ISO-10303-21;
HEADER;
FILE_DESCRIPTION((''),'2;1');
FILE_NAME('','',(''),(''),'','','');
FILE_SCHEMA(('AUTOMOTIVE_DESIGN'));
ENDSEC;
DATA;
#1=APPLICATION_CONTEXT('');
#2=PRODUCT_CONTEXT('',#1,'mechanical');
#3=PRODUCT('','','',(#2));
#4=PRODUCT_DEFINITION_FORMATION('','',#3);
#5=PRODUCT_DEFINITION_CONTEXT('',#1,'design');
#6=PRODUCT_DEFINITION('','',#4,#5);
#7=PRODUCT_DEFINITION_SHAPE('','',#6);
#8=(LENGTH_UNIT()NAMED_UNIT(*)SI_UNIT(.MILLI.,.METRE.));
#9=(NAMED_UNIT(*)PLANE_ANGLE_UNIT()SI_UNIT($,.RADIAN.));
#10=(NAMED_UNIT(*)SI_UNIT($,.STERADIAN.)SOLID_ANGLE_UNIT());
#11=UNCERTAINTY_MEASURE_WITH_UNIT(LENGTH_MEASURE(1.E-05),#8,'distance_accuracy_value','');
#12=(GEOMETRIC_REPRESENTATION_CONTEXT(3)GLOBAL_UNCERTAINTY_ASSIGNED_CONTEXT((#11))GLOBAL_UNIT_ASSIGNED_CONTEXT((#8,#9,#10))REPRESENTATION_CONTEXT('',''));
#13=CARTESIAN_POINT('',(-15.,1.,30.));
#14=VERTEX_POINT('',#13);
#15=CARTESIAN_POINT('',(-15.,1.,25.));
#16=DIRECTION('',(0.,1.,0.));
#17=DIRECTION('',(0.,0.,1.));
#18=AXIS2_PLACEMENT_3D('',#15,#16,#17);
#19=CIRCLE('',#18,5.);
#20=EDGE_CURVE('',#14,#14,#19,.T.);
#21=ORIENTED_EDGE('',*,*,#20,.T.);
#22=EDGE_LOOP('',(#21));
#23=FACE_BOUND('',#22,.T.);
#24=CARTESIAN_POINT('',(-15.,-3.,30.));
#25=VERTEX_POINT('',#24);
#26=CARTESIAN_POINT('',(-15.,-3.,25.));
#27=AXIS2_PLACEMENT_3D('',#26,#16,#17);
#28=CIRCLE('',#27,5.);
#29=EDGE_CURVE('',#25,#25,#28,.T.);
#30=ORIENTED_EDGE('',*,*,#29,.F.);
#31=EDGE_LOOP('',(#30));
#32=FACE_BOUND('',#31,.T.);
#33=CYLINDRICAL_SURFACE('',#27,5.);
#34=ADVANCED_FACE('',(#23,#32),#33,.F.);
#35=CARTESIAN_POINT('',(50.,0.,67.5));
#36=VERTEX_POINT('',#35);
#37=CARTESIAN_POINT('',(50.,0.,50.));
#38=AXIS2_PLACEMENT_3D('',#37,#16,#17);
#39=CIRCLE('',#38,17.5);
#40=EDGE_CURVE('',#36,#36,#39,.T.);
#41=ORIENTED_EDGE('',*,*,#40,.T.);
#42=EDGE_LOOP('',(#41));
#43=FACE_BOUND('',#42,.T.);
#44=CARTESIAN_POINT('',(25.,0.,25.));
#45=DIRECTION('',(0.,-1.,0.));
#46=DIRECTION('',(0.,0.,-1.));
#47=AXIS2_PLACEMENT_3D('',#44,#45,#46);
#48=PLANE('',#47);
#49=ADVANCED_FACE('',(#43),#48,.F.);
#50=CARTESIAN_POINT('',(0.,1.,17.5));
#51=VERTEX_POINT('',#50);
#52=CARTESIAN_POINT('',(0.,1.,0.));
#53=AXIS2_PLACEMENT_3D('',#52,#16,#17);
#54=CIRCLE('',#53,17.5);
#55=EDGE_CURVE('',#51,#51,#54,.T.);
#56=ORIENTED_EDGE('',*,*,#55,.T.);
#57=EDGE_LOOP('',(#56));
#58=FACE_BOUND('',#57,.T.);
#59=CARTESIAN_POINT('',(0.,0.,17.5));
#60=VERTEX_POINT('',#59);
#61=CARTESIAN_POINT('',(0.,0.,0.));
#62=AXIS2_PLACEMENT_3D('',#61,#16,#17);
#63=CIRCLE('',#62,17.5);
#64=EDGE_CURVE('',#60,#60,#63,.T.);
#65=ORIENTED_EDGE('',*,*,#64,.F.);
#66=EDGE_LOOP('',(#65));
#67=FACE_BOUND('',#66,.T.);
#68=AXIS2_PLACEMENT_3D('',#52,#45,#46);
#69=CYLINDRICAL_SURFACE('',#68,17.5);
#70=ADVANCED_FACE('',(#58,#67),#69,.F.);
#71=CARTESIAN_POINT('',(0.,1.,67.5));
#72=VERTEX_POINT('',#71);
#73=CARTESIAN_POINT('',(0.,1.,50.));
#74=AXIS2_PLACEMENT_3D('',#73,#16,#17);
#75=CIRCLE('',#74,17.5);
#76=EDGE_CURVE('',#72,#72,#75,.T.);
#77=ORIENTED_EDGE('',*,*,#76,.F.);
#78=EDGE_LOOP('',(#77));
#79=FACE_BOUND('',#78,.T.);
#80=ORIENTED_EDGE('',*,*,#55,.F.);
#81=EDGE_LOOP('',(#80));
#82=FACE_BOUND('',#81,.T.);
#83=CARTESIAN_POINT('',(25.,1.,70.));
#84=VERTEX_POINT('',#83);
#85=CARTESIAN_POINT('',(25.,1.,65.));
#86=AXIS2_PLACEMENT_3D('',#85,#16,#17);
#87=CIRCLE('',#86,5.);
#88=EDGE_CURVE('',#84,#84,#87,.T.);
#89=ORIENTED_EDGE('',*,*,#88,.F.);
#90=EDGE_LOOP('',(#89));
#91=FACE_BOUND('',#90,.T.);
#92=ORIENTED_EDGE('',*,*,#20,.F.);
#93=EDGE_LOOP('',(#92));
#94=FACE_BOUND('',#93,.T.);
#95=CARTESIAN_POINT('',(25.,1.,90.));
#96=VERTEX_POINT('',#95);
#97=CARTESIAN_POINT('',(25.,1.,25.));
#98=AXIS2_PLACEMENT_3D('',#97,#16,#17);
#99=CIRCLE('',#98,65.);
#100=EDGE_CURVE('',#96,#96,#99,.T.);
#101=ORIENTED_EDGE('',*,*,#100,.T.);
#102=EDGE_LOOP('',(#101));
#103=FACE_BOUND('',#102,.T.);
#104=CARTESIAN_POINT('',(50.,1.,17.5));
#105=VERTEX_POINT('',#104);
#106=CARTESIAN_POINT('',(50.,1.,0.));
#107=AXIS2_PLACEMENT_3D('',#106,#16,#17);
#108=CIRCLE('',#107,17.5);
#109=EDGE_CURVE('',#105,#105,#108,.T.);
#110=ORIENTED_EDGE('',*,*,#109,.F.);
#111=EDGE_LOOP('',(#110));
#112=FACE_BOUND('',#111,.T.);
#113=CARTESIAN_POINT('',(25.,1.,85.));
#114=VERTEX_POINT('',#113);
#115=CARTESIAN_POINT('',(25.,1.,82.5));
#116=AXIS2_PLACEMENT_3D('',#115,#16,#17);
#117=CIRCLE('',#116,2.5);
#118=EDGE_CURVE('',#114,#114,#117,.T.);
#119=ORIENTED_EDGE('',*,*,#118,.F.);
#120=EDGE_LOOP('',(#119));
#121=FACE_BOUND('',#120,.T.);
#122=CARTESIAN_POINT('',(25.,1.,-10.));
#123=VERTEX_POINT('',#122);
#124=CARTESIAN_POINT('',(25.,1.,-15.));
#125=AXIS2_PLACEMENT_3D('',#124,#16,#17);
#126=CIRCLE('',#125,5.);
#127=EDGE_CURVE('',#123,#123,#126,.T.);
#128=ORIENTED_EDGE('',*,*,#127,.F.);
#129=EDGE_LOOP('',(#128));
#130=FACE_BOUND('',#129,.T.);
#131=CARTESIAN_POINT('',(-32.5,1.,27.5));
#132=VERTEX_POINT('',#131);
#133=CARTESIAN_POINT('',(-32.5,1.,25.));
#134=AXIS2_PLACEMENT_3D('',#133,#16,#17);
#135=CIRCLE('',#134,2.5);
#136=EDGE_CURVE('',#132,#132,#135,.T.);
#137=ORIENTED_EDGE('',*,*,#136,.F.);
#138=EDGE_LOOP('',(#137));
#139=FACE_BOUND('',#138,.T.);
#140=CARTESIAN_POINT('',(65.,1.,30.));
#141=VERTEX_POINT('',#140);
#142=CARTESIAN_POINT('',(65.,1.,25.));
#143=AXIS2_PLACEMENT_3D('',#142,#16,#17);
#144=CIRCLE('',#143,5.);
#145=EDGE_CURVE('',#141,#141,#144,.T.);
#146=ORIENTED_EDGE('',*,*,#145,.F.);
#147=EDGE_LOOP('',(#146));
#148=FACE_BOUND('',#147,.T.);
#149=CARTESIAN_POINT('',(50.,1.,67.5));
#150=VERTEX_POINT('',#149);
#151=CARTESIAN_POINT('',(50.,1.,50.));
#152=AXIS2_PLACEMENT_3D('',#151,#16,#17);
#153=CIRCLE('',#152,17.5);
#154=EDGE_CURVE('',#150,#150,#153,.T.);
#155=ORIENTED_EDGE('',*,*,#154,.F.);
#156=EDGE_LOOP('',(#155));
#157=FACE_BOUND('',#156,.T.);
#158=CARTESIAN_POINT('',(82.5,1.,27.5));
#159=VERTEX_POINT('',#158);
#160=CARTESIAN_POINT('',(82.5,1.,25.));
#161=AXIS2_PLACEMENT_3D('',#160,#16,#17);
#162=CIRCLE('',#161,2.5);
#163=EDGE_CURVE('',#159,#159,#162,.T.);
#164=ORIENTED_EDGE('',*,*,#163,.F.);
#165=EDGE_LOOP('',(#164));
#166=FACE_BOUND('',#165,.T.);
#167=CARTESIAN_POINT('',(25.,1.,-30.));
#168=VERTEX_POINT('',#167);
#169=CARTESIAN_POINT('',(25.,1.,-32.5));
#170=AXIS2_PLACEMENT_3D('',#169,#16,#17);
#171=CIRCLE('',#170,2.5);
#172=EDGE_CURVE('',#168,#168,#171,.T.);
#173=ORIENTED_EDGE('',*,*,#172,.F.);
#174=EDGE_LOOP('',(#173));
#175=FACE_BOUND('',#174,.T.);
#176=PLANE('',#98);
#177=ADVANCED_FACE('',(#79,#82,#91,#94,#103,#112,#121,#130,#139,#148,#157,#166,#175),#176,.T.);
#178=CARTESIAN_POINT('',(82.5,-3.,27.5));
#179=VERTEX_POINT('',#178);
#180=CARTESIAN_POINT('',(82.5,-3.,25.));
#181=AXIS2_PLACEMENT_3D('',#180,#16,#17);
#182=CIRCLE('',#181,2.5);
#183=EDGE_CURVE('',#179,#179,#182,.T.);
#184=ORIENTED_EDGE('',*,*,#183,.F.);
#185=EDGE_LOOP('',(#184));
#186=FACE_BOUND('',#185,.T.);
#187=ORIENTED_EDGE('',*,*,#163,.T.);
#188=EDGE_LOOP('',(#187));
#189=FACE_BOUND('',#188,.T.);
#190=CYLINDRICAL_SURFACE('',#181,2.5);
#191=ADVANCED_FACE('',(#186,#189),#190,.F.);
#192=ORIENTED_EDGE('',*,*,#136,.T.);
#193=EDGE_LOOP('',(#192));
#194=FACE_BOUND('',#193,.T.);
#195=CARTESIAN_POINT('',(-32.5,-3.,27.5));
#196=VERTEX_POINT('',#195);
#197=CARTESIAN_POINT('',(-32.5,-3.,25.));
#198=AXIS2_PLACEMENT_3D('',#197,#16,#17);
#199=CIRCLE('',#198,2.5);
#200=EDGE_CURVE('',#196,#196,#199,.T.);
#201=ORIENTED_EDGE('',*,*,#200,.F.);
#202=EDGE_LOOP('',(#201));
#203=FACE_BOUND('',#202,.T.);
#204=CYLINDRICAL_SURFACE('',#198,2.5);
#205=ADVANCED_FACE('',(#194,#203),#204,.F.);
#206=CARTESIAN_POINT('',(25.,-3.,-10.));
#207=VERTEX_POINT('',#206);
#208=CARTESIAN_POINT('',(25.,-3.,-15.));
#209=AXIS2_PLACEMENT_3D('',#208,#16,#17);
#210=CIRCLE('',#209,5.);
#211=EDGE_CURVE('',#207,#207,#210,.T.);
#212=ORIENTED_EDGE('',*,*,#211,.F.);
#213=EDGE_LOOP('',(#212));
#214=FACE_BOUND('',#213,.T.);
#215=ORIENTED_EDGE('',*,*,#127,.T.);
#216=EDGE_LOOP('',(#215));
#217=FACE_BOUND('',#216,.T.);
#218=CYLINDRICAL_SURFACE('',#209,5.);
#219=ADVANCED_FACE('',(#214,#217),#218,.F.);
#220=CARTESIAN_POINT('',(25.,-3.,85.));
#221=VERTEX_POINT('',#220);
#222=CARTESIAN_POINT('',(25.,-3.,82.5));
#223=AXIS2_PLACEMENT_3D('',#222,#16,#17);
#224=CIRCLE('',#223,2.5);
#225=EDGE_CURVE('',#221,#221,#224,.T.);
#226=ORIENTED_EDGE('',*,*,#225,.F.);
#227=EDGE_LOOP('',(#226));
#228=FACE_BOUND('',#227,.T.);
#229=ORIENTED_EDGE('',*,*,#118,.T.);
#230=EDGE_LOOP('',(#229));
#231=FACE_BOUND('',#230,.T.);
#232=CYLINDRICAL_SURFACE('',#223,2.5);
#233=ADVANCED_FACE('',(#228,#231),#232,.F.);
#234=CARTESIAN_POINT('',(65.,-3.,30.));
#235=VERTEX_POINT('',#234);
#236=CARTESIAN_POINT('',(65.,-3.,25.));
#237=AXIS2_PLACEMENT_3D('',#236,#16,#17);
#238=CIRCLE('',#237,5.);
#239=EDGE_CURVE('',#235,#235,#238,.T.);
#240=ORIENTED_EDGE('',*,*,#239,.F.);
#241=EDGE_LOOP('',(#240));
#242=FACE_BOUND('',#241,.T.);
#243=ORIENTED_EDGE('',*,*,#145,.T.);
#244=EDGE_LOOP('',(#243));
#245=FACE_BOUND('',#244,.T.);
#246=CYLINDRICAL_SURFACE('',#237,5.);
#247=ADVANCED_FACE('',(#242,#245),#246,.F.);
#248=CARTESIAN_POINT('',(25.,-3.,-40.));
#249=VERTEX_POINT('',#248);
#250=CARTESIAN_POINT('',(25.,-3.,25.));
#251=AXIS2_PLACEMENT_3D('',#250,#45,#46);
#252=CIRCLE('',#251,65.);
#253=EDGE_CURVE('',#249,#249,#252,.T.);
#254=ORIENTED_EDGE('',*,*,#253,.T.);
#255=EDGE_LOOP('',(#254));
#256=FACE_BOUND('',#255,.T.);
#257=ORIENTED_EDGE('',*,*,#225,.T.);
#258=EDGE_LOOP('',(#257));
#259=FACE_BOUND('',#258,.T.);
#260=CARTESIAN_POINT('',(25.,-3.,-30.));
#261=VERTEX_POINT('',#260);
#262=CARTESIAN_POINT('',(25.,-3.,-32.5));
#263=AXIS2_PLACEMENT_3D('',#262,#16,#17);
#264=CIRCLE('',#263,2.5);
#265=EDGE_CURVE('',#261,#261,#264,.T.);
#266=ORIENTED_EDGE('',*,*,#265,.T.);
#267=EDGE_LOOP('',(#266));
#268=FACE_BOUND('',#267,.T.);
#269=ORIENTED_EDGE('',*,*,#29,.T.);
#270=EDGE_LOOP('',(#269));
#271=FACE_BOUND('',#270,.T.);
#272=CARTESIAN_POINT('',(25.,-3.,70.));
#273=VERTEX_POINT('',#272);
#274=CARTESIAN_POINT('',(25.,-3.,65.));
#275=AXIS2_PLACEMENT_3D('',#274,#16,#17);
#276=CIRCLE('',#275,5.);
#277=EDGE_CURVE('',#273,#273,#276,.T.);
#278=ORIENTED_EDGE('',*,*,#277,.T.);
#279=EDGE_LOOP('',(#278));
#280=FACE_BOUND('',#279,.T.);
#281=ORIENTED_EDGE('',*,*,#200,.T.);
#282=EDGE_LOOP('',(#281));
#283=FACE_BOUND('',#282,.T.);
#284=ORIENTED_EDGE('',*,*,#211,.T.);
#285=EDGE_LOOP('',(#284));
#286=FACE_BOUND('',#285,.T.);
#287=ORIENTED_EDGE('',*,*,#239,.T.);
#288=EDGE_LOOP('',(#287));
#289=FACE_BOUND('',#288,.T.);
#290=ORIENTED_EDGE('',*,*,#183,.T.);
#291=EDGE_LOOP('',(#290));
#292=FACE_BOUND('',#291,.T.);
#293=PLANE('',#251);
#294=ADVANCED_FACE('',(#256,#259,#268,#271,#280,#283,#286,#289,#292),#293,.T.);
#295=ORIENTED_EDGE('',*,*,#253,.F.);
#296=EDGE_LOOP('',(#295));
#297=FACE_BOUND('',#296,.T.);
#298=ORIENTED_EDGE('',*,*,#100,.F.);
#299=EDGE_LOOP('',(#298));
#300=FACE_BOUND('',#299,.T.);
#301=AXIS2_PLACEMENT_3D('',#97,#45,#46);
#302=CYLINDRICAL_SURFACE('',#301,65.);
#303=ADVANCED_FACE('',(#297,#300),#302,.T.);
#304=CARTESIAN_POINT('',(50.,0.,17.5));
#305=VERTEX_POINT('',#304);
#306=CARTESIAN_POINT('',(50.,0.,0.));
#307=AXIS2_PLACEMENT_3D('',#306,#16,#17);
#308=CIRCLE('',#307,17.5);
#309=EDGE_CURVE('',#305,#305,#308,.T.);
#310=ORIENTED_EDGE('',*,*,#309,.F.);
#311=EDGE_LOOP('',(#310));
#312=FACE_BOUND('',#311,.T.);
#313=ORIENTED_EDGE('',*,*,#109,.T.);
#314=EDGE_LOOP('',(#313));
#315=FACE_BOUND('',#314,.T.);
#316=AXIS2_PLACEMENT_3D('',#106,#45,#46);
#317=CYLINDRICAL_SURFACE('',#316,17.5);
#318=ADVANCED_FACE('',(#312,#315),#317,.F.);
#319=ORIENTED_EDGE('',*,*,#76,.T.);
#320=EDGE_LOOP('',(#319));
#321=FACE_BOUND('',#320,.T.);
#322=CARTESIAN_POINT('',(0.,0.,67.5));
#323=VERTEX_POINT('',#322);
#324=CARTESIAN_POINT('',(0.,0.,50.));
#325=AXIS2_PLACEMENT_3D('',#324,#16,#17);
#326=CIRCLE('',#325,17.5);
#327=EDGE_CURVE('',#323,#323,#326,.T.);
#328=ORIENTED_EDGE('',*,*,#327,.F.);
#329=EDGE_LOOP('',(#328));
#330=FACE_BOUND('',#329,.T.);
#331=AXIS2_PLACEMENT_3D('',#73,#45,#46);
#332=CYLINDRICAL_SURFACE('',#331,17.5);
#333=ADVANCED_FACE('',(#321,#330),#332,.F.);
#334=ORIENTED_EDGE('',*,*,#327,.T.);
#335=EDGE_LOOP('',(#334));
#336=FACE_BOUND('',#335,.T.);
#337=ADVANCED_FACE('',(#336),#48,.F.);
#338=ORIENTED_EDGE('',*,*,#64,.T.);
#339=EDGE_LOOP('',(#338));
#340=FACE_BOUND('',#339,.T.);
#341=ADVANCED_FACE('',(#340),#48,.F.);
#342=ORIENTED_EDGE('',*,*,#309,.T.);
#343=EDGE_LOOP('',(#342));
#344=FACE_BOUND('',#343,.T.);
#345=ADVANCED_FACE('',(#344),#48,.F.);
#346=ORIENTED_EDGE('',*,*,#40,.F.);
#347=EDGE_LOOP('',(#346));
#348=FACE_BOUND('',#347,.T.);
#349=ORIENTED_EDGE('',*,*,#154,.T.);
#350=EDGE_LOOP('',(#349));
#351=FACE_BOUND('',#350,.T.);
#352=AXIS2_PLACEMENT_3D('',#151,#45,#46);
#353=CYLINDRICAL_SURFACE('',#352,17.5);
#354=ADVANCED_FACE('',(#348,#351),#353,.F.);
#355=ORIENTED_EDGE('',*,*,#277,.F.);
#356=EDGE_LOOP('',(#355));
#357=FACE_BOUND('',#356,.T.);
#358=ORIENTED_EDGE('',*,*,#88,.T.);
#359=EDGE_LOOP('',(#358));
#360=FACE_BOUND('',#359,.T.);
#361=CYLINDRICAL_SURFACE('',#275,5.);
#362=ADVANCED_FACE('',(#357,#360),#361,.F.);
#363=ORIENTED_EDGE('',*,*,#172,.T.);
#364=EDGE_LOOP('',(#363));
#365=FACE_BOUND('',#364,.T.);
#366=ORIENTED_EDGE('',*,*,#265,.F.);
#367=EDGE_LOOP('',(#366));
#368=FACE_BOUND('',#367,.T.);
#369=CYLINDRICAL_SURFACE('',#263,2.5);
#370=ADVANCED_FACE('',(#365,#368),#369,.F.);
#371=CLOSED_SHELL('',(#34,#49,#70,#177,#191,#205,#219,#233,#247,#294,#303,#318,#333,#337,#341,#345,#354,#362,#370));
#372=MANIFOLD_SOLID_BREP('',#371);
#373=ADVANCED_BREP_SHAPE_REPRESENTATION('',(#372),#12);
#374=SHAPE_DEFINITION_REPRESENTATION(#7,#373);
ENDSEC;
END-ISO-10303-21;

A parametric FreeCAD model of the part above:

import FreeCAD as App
import Part
import Sketcher
Q = App.Units.Quantity

doc = App.newDocument("Part")
body = doc.addObject("PartDesign::Body", "Body")

sketch1 = body.newObject("Sketcher::SketchObject", "Sketch")
sketch1.AttachmentSupport = (doc.getObject("XZ_Plane"), [""])
sketch1.MapMode = "FlatFace"
sketch1.addGeometry([
    Part.Circle(App.Vector(25, 25, 0), App.Vector(0, 0, 1), 65),
    Part.Circle(App.Vector(0, 0, 0), App.Vector(0, 0, 1), 18),
    Part.Circle(App.Vector(0, 50, 0), App.Vector(0, 0, 1), 18),
    Part.Circle(App.Vector(50, 0, 0), App.Vector(0, 0, 1), 18),
    Part.Circle(App.Vector(50, 50, 0), App.Vector(0, 0, 1), 18),
], False)
sketch1.addConstraint([
    Sketcher.Constraint("Coincident", 1, 3, -1, 1),
    Sketcher.Constraint("Equal", 1, 2),
    Sketcher.Constraint("Equal", 2, 3),
    Sketcher.Constraint("Equal", 3, 4),
    Sketcher.Constraint("PointOnObject", 2, 3, -2),
    Sketcher.Constraint("PointOnObject", 3, 3, -1),
    Sketcher.Constraint("Horizontal", 2, 3, 4, 3),
    Sketcher.Constraint("Vertical", 3, 3, 4, 3),
    Sketcher.Constraint("Diameter", 0, Q("130 mm")),
    Sketcher.Constraint("Diameter", 1, Q("35 mm")),
    Sketcher.Constraint("DistanceX", -1, 1, 0, 3, Q("25 mm")),
    Sketcher.Constraint("DistanceY", -1, 1, 0, 3, Q("25 mm")),
    Sketcher.Constraint("DistanceY", -1, 1, 2, 3, Q("50 mm")),
    Sketcher.Constraint("DistanceX", -1, 1, 3, 3, Q("50 mm")),
])
pad1 = body.newObject("PartDesign::Pad", "Pad")
pad1.Profile = sketch1
pad1.Length = 1
pad1.Reversed = True

sketch2 = body.newObject("Sketcher::SketchObject", "Sketch001")
sketch2.AttachmentSupport = (doc.getObject("XZ_Plane"), [""])
sketch2.MapMode = "FlatFace"
sketch2.AttachmentOffset = App.Placement(App.Vector(0, 0, 3), App.Rotation())
sketch2.addGeometry(Part.Circle(App.Vector(25, 25, 0), App.Vector(0, 0, 1), 65), False)
sketch2.addConstraint([
    Sketcher.Constraint("Diameter", 0, Q("130 mm")),
    Sketcher.Constraint("DistanceX", -1, 1, 0, 3, Q("25 mm")),
    Sketcher.Constraint("DistanceY", -1, 1, 0, 3, Q("25 mm")),
])
pad2 = body.newObject("PartDesign::Pad", "Pad001")
pad2.Profile = sketch2
pad2.Length = 3
pad2.Reversed = True

sketch3 = body.newObject("Sketcher::SketchObject", "Sketch002")
sketch3.AttachmentSupport = (doc.getObject("XZ_Plane"), [""])
sketch3.MapMode = "FlatFace"
sketch3.AttachmentOffset = App.Placement(App.Vector(0, 0, -1), App.Rotation())
sketch3.addGeometry([
    Part.Circle(App.Vector(25, -15, 0), App.Vector(0, 0, 1), 5),
    Part.Circle(App.Vector(65, 25, 0), App.Vector(0, 0, 1), 5),
    Part.Circle(App.Vector(25, 65, 0), App.Vector(0, 0, 1), 5),
    Part.Circle(App.Vector(-15, 25, 0), App.Vector(0, 0, 1), 5),
], False)
sketch3.addConstraint([
    Sketcher.Constraint("Equal", 0, 1),
    Sketcher.Constraint("Equal", 1, 2),
    Sketcher.Constraint("Equal", 2, 3),
    Sketcher.Constraint("Horizontal", 1, 3, 3, 3),
    Sketcher.Constraint("Vertical", 0, 3, 2, 3),
    Sketcher.Constraint("Diameter", 0, Q("10 mm")),
    Sketcher.Constraint("DistanceX", -1, 1, 0, 3, Q("25 mm")),
    Sketcher.Constraint("DistanceY", 0, 3, -1, 1, Q("15 mm")),
    Sketcher.Constraint("DistanceX", -1, 1, 1, 3, Q("65 mm")),
    Sketcher.Constraint("DistanceY", -1, 1, 1, 3, Q("25 mm")),
    Sketcher.Constraint("DistanceY", -1, 1, 2, 3, Q("65 mm")),
    Sketcher.Constraint("DistanceX", 3, 3, -1, 1, Q("15 mm")),
])
pocket1 = body.newObject("PartDesign::Pocket", "Pocket")
pocket1.Profile = sketch3
pocket1.Type = "ThroughAll"
pocket1.Reversed = True

sketch4 = body.newObject("Sketcher::SketchObject", "Sketch003")
sketch4.AttachmentSupport = (doc.getObject("XZ_Plane"), [""])
sketch4.MapMode = "FlatFace"
sketch4.AttachmentOffset = App.Placement(App.Vector(0, 0, -1), App.Rotation())
sketch4.addGeometry([
    Part.Circle(App.Vector(25, -32.5, 0), App.Vector(0, 0, 1), 2.5),
    Part.Circle(App.Vector(82.5, 25, 0), App.Vector(0, 0, 1), 2.5),
    Part.Circle(App.Vector(25, 82.5, 0), App.Vector(0, 0, 1), 2.5),
    Part.Circle(App.Vector(-32.5, 25, 0), App.Vector(0, 0, 1), 2.5),
], False)
sketch4.addConstraint([
    Sketcher.Constraint("Equal", 0, 1),
    Sketcher.Constraint("Equal", 1, 2),
    Sketcher.Constraint("Equal", 2, 3),
    Sketcher.Constraint("Horizontal", 1, 3, 3, 3),
    Sketcher.Constraint("Vertical", 0, 3, 2, 3),
    Sketcher.Constraint("Diameter", 0, Q("5 mm")),
    Sketcher.Constraint("DistanceX", -1, 1, 0, 3, Q("25 mm")),
    Sketcher.Constraint("DistanceY", -1, 1, 1, 3, Q("25 mm")),
    Sketcher.Constraint("DistanceY", 0, 3, 2, 3, Q("115 mm")),
    Sketcher.Constraint("DistanceX", 3, 3, 1, 3, Q("115 mm")),
    Sketcher.Constraint("DistanceY", 0, 3, -1, 1, Q("32.5 mm")),
    Sketcher.Constraint("DistanceX", -1, 1, 1, 3, Q("82.5 mm")),
])
pocket2 = body.newObject("PartDesign::Pocket", "Pocket001")
pocket2.Profile = sketch4
pocket2.Type = "ThroughAll"
pocket2.Reversed = True

doc.recompute()
